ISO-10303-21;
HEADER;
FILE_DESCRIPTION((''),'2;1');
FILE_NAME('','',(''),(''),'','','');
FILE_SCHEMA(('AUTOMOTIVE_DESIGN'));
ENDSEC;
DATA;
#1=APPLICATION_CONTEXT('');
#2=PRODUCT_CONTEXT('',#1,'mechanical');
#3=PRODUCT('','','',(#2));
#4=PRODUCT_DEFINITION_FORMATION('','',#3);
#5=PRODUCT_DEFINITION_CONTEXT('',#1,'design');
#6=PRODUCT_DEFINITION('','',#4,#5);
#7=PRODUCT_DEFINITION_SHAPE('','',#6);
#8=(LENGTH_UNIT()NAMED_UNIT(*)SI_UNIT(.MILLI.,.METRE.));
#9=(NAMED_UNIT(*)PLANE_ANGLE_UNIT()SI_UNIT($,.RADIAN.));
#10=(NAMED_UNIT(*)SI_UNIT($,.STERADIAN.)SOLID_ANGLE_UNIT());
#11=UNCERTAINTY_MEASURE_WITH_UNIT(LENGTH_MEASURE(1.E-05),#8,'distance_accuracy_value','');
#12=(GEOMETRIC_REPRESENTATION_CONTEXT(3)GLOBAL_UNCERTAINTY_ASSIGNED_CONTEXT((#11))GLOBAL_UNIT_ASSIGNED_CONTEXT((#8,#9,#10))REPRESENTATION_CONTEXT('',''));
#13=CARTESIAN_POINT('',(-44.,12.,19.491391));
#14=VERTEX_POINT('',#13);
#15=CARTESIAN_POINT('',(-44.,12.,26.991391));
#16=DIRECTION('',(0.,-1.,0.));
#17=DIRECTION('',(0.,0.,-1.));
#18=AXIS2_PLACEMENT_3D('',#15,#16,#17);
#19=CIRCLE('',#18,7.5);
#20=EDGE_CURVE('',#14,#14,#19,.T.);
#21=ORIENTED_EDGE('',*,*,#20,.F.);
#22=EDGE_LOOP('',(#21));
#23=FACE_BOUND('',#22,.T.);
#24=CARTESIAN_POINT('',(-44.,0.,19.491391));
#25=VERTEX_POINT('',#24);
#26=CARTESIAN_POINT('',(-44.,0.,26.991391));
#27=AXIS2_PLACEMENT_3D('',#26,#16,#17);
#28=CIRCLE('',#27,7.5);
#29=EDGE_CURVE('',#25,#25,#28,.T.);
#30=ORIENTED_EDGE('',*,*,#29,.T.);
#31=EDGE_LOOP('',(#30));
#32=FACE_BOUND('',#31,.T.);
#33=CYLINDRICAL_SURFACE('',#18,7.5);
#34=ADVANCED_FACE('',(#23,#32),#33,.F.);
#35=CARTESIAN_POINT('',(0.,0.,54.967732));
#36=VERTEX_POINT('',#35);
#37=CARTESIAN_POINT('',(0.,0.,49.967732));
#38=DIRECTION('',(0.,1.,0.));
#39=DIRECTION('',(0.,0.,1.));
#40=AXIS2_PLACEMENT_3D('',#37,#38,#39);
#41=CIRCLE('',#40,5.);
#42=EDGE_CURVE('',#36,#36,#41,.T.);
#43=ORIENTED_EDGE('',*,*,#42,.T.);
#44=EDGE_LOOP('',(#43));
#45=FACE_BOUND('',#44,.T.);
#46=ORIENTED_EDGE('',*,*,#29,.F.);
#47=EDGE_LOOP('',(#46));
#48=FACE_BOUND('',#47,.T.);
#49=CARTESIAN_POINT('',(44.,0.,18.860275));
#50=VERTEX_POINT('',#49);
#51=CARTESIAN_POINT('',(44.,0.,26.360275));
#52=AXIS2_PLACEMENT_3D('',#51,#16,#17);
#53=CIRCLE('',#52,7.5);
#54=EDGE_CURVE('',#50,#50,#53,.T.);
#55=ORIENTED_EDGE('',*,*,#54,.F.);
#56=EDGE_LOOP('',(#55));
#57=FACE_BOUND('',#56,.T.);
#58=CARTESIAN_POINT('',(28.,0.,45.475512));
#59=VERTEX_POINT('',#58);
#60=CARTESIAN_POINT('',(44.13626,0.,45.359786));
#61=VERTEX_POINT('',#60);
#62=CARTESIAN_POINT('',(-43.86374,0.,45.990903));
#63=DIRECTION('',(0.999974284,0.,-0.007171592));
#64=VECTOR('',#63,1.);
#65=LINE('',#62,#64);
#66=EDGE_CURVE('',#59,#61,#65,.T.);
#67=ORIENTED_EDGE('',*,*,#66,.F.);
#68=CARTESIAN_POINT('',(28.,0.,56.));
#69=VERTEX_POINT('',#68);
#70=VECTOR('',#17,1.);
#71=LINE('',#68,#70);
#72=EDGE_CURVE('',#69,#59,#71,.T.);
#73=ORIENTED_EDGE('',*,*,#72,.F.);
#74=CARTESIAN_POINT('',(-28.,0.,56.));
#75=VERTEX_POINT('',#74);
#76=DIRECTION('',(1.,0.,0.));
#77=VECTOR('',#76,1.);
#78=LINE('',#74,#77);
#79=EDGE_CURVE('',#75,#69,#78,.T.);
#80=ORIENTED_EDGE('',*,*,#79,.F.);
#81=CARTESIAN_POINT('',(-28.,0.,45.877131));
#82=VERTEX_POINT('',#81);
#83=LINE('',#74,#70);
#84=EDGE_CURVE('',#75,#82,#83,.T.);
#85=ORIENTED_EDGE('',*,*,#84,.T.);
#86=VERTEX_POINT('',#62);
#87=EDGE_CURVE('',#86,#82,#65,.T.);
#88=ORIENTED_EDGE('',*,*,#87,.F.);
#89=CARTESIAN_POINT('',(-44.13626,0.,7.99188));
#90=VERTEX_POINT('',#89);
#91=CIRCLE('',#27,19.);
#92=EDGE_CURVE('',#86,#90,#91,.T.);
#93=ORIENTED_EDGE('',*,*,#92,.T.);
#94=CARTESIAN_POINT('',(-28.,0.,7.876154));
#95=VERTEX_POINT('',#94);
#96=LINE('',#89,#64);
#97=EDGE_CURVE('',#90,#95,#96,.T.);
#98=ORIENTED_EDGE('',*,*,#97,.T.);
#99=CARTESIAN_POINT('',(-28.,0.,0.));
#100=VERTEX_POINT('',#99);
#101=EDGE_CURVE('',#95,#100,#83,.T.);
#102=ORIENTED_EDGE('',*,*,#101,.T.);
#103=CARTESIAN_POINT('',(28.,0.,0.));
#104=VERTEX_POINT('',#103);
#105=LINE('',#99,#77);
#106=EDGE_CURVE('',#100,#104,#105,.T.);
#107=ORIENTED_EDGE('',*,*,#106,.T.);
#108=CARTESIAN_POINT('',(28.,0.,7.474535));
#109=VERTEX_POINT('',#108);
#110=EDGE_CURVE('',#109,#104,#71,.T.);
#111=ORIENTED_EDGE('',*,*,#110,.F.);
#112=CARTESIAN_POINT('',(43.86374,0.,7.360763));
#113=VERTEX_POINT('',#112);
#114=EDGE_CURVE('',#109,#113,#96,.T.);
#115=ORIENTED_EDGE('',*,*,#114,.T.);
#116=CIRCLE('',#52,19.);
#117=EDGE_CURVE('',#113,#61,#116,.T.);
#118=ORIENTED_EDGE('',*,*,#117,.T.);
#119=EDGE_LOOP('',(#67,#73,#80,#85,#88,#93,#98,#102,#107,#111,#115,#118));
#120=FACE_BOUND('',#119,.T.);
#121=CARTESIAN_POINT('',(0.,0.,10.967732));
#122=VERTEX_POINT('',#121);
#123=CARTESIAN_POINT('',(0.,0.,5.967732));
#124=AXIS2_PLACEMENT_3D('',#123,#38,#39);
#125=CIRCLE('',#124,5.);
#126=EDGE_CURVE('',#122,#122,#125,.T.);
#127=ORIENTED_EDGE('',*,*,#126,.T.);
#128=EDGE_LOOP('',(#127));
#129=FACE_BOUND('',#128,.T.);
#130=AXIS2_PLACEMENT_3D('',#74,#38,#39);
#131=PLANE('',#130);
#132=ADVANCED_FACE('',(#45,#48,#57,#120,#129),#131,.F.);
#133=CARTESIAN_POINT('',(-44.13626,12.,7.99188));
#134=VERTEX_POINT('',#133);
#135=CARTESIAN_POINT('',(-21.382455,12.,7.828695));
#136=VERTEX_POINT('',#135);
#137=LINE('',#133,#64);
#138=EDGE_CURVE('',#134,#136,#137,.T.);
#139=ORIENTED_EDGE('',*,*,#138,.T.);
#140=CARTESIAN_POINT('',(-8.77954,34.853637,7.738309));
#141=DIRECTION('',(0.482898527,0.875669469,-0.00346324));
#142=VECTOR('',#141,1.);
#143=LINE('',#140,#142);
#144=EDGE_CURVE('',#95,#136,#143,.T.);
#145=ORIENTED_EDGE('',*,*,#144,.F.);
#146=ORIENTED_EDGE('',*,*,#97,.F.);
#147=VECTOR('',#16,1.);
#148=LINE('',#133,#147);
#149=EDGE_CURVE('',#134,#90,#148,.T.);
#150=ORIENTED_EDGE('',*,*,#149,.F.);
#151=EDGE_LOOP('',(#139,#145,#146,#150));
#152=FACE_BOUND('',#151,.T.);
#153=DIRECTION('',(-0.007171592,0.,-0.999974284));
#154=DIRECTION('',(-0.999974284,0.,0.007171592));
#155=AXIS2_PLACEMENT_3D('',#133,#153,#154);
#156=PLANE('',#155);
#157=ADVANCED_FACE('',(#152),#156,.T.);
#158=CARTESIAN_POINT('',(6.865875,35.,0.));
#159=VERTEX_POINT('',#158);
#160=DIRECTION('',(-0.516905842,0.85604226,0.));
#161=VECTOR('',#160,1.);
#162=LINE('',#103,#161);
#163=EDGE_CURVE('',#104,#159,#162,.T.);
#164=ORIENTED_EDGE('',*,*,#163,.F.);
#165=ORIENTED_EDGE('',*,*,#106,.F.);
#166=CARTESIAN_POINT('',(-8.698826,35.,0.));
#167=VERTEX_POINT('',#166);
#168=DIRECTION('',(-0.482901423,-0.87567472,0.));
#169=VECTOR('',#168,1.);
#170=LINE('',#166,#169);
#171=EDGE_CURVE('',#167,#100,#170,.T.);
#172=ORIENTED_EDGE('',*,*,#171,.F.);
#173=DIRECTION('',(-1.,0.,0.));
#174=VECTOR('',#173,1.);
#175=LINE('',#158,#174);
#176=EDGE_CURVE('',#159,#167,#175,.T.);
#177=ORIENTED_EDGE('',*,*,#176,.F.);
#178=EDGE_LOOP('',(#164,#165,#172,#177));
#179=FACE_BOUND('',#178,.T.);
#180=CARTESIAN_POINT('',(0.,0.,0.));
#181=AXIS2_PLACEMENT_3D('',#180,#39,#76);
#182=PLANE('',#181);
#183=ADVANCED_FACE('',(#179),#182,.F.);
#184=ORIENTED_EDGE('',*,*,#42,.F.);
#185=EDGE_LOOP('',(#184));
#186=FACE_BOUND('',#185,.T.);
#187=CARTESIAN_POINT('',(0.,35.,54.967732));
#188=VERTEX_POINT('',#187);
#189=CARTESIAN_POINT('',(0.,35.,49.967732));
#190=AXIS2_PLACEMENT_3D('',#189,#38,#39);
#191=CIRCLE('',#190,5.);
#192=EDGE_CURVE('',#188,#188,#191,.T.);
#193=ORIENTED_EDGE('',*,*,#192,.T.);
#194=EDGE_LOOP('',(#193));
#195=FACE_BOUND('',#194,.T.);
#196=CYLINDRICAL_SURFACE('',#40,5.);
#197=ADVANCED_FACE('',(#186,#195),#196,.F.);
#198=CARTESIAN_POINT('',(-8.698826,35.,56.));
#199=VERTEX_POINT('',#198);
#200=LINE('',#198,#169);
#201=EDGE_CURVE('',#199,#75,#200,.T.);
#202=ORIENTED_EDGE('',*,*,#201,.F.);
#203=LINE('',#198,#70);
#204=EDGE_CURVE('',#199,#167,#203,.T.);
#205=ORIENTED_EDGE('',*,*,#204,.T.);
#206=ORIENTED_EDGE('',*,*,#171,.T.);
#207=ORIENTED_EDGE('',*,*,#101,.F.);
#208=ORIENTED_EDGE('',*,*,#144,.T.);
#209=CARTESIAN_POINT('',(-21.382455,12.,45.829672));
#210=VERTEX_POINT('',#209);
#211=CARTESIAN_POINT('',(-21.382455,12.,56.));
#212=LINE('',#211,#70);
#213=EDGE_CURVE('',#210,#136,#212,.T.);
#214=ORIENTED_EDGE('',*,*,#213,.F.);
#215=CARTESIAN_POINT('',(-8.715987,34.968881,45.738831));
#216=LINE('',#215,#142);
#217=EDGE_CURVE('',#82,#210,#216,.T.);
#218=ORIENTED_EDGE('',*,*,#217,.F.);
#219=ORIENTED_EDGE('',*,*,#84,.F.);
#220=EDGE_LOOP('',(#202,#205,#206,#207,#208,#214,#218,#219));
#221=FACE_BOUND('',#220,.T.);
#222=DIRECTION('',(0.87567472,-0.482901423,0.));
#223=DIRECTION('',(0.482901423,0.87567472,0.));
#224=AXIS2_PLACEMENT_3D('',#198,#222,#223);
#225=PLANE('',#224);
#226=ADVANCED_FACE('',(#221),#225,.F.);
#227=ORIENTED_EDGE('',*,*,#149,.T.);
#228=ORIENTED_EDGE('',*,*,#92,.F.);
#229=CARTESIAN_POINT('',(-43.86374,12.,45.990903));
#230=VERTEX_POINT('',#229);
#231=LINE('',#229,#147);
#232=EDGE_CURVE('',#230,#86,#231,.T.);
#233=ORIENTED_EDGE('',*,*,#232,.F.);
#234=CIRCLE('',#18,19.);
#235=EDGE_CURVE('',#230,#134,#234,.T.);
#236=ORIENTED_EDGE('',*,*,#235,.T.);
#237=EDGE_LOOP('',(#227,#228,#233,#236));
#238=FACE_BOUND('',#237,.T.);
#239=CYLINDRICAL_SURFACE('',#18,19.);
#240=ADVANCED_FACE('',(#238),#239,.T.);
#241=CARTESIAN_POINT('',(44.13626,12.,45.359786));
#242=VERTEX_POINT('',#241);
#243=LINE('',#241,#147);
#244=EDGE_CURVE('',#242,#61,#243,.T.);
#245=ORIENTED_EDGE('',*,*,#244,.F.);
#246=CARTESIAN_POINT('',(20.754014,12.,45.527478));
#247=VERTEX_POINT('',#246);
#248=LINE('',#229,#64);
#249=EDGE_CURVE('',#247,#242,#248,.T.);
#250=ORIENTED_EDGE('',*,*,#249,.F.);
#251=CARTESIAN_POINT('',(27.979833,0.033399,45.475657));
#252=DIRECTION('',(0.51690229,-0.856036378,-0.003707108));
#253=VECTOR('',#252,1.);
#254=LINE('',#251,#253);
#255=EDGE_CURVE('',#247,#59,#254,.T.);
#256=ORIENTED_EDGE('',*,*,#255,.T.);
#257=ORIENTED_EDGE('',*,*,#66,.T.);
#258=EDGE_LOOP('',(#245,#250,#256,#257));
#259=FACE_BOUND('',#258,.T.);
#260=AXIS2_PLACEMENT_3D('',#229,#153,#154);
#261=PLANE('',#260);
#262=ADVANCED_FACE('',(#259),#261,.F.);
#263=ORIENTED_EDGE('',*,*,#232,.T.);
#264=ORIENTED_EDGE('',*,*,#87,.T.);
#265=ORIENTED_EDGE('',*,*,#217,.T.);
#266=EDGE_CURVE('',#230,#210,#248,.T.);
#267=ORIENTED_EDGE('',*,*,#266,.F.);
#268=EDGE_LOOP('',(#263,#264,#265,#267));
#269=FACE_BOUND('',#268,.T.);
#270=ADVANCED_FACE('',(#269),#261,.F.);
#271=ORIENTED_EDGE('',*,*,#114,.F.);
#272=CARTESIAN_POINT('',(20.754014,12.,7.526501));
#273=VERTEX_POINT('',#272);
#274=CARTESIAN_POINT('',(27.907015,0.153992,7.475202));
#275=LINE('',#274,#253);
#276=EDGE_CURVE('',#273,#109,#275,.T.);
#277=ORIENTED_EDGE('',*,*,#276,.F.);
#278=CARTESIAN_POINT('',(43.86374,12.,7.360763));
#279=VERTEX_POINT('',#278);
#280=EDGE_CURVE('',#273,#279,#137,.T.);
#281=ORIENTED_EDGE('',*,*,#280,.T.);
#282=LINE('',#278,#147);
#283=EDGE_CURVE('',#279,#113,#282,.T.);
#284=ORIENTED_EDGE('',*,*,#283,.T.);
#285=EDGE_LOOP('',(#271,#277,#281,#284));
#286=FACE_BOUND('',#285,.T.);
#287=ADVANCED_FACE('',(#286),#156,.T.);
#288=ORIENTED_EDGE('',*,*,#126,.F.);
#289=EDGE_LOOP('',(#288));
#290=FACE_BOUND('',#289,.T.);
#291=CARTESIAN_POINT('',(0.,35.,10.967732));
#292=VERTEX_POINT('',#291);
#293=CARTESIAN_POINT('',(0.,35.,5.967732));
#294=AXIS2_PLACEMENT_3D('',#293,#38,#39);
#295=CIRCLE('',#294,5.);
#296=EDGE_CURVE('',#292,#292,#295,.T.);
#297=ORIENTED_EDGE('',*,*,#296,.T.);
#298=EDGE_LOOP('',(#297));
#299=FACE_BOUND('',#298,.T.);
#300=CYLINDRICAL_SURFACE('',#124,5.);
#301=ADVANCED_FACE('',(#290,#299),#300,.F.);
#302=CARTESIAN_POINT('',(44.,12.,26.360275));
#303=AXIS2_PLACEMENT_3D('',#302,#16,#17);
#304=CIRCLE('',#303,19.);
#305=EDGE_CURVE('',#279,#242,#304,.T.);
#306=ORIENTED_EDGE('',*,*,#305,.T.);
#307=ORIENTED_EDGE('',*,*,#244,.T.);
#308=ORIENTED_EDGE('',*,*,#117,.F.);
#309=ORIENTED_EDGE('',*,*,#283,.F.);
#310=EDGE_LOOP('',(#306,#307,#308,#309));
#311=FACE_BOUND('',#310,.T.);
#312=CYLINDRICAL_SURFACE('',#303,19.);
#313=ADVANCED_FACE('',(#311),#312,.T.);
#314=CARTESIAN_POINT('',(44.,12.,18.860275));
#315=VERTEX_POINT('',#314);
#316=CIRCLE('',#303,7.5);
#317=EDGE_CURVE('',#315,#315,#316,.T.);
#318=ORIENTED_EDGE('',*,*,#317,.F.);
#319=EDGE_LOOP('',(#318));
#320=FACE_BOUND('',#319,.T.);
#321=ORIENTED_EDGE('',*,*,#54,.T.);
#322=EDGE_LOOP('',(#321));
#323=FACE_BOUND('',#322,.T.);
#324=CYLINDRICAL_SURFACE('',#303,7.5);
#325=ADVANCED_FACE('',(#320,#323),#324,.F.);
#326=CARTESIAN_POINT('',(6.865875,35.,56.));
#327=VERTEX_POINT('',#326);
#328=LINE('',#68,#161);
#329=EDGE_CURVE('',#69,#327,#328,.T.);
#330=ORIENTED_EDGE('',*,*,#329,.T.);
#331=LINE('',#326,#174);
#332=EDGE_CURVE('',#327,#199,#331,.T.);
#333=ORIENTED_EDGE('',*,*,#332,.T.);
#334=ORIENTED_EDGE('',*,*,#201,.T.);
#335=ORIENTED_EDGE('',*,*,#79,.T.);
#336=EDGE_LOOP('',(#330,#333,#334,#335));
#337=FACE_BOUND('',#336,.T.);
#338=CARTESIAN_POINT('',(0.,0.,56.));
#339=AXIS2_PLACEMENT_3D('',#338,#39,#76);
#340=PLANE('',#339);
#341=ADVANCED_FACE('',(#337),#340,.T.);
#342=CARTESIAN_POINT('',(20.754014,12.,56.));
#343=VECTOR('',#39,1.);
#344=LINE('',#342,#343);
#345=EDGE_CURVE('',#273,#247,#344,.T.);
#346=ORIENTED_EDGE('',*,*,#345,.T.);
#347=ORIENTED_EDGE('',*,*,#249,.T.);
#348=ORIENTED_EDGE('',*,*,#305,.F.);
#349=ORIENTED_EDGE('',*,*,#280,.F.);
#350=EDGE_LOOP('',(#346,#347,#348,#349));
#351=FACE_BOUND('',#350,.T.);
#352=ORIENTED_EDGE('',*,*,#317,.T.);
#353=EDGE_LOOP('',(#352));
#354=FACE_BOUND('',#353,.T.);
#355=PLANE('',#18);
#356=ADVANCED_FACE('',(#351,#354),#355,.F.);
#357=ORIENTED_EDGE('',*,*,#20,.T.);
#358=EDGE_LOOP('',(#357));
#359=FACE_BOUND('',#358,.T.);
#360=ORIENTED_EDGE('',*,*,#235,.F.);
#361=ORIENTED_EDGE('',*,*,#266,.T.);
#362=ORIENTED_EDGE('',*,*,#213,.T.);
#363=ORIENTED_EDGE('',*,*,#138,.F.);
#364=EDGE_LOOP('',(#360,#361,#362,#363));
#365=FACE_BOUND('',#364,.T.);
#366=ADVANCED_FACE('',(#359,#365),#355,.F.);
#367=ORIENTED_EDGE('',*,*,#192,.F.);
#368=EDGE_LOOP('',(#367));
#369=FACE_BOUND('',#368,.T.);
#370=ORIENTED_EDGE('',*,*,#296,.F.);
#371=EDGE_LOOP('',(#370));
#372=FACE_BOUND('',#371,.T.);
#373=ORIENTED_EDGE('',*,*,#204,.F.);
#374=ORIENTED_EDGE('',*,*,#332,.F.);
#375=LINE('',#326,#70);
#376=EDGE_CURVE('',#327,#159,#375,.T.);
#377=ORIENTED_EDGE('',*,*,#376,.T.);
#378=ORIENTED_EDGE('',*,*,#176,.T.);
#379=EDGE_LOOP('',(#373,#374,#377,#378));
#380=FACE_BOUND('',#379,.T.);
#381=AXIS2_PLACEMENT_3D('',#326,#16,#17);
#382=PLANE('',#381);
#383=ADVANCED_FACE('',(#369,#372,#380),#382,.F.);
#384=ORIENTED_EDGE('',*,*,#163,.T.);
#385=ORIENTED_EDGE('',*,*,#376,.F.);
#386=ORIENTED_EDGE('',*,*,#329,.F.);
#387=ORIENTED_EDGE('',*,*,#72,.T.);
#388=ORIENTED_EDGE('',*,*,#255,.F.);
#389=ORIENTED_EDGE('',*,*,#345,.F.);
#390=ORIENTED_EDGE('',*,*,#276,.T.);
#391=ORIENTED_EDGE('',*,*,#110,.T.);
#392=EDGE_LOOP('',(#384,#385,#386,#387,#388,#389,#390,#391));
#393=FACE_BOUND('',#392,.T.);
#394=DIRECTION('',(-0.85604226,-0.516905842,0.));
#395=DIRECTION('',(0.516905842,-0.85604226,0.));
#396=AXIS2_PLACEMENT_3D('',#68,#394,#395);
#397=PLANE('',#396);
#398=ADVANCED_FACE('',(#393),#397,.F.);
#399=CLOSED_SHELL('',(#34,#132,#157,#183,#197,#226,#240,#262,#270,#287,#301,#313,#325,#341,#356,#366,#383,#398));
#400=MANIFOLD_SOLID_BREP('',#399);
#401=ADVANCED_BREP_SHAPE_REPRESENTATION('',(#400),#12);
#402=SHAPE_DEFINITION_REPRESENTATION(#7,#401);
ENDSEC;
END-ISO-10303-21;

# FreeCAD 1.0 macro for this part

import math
import FreeCAD as App
import Part
import Sketcher
Q = App.Units.Quantity


def add_polygon(sketch, points):
    """Adds a closed chain of lines whose ends are joined by coincident constraints."""
    first, n = sketch.GeometryCount, len(points)
    for a, b in zip(points, points[1:] + points[:1]):
        sketch.addGeometry(Part.LineSegment(App.Vector(*a, 0), App.Vector(*b, 0)), False)
    for i in range(n):
        sketch.addConstraint(Sketcher.Constraint("Coincident", first + i, 2, first + (i + 1) % n, 1))

doc = App.newDocument("Part")
body = doc.addObject("PartDesign::Body", "Body")

# Sketch on XY plane
sketch1 = body.newObject("Sketcher::SketchObject", "Sketch")
sketch1.AttachmentSupport = (doc.getObject("XY_Plane"), [""])
sketch1.MapMode = "FlatFace"
add_polygon(sketch1, [(-28, 0), (28, 0), (7, 35), (-9, 35)])  # lines 0-3
sketch1.addConstraint([
    Sketcher.Constraint("Horizontal", 0),
    Sketcher.Constraint("Horizontal", 2),
    Sketcher.Constraint("Symmetric", 0, 2, 3, 2, -1, 1),
    Sketcher.Constraint("DistanceX", 0, 1, 0, 2, Q("56 mm")),
    Sketcher.Constraint("DistanceY", -1, 1, 1, 2, Q("35 mm")),
    Sketcher.Constraint("DistanceX", 2, 2, 2, 1, Q("15.564701 mm")),
    Sketcher.Constraint("Distance", 1, Q("40.885832 mm")),
])
pad1 = body.newObject("PartDesign::Pad", "Pad")
pad1.Profile = sketch1
pad1.Length = 56

# Sketch on XZ plane
sketch2 = body.newObject("Sketcher::SketchObject", "Sketch001")
sketch2.AttachmentSupport = (doc.getObject("XZ_Plane"), [""])
sketch2.MapMode = "FlatFace"
sketch2.addGeometry([
    Part.LineSegment(App.Vector(44, 45, 0), App.Vector(-44, 46, 0)),  # 0
    Part.ArcOfCircle(Part.Circle(App.Vector(-44, 27, 0), App.Vector(0, 0, 1), 19), math.radians(90), math.radians(270)),  # 1
    Part.LineSegment(App.Vector(-44, 8, 0), App.Vector(44, 7, 0)),  # 2
    Part.ArcOfCircle(Part.Circle(App.Vector(44, 26, 0), App.Vector(0, 0, 1), 19), math.radians(-90), math.radians(90)),  # 3
    Part.Circle(App.Vector(44, 26, 0), App.Vector(0, 0, 1), 8),  # 4
    Part.Circle(App.Vector(-44, 27, 0), App.Vector(0, 0, 1), 8),  # 5
], False)
sketch2.addConstraint([
    Sketcher.Constraint("Tangent", 0, 2, 1, 1),
    Sketcher.Constraint("Tangent", 1, 2, 2, 1),
    Sketcher.Constraint("Tangent", 2, 2, 3, 1),
    Sketcher.Constraint("Tangent", 3, 2, 0, 1),
    Sketcher.Constraint("Coincident", 4, 3, 3, 3),
    Sketcher.Constraint("Coincident", 5, 3, 1, 3),
    Sketcher.Constraint("Equal", 1, 3),
    Sketcher.Constraint("Equal", 4, 5),
    Sketcher.Constraint("Diameter", 4, Q("15 mm")),
    Sketcher.Constraint("Radius", 1, Q("19 mm")),
    Sketcher.Constraint("DistanceX", 1, 3, -1, 1, Q("44 mm")),
    Sketcher.Constraint("DistanceX", -1, 1, 3, 3, Q("44 mm")),
    Sketcher.Constraint("DistanceY", -1, 1, 1, 3, Q("26.991391 mm")),
    Sketcher.Constraint("DistanceX", 0, 2, -1, 1, Q("43.86374 mm")),
])
pad2 = body.newObject("PartDesign::Pad", "Pad001")
pad2.Profile = sketch2
pad2.Length = 12
pad2.Reversed = True

# Sketch on XZ plane
sketch3 = body.newObject("Sketcher::SketchObject", "Sketch002")
sketch3.AttachmentSupport = (doc.getObject("XZ_Plane"), [""])
sketch3.MapMode = "FlatFace"
sketch3.AttachmentOffset = App.Placement(App.Vector(0, 0, -35), App.Rotation())
sketch3.addGeometry([
    Part.Circle(App.Vector(0, 6, 0), App.Vector(0, 0, 1), 5),
    Part.Circle(App.Vector(0, 50, 0), App.Vector(0, 0, 1), 5),
], False)
sketch3.addConstraint([
    Sketcher.Constraint("Equal", 0, 1),
    Sketcher.Constraint("PointOnObject", 0, 3, -2),
    Sketcher.Constraint("PointOnObject", 1, 3, -2),
    Sketcher.Constraint("Diameter", 0, Q("10 mm")),
    Sketcher.Constraint("DistanceY", 0, 3, 1, 3, Q("44 mm")),
    Sketcher.Constraint("DistanceY", -1, 1, 0, 3, Q("5.967732 mm")),
])
pocket1 = body.newObject("PartDesign::Pocket", "Pocket")
pocket1.Profile = sketch3
pocket1.Type = "ThroughAll"
pocket1.Reversed = True

doc.recompute()
